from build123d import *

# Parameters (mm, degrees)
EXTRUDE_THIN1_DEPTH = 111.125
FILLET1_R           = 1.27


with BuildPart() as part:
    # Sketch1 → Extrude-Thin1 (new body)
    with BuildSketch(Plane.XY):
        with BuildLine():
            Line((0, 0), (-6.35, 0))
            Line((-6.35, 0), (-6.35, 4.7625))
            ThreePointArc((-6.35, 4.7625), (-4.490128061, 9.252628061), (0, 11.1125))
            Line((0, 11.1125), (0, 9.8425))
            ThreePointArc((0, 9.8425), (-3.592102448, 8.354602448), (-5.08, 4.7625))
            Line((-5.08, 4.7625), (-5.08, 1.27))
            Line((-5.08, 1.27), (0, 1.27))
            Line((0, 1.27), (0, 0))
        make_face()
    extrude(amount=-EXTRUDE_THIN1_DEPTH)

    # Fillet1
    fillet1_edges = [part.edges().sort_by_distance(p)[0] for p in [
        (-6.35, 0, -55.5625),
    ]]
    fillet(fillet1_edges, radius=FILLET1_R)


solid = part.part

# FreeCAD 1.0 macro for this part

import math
import FreeCAD as App
import Part
import Sketcher
Q = App.Units.Quantity


def edges_at(feature, points):
    """Names of the edges that pass closest to the given points."""
    edges = feature.Shape.Edges
    near = lambda p: min(range(len(edges)), key=lambda i: edges[i].distToShape(Part.Vertex(*p))[0])
    return sorted({f"Edge{near(p) + 1}" for p in points})

doc = App.newDocument("Part")
body = doc.addObject("PartDesign::Body", "Body")

# Sketch on XY plane
sketch1 = doc.addObject("Sketcher::SketchObject", "Sketch")
body.addObject(sketch1)
sketch1.AttachmentSupport = (doc.XY_Plane, [""])
sketch1.MapMode = "FlatFace"
sketch1.addGeometry([
    Part.LineSegment(App.Vector(-6.3, 0, 0), App.Vector(0, 0, 0)),  # 0
    Part.LineSegment(App.Vector(0, 0, 0), App.Vector(0, 1.3, 0)),  # 1
    Part.LineSegment(App.Vector(0, 1.3, 0), App.Vector(-5.1, 1.3, 0)),  # 2
    Part.LineSegment(App.Vector(-5.1, 1.3, 0), App.Vector(-5.1, 4.8, 0)),  # 3
    Part.ArcOfCircle(Part.Circle(App.Vector(0, 4.8, 0), App.Vector(0, 0, 1), 5.1), math.radians(90), math.radians(180)),  # 4
    Part.LineSegment(App.Vector(0, 9.8, 0), App.Vector(0, 11.1, 0)),  # 5
    Part.ArcOfCircle(Part.Circle(App.Vector(0, 4.8, 0), App.Vector(0, 0, 1), 6.3), math.radians(90), math.radians(180)),  # 6
    Part.LineSegment(App.Vector(-6.3, 4.8, 0), App.Vector(-6.3, 0, 0)),  # 7
], False)
sketch1.addConstraint([
    Sketcher.Constraint("Coincident", 0, 2, 1, 1),
    Sketcher.Constraint("Coincident", 1, 2, 2, 1),
    Sketcher.Constraint("Coincident", 2, 2, 3, 1),
    Sketcher.Constraint("Tangent", 3, 2, 4, 2),
    Sketcher.Constraint("Coincident", 4, 1, 5, 1),
    Sketcher.Constraint("Coincident", 5, 2, 6, 1),
    Sketcher.Constraint("Tangent", 6, 2, 7, 1),
    Sketcher.Constraint("Coincident", 7, 2, 0, 1),
    Sketcher.Constraint("Horizontal", 0),
    Sketcher.Constraint("Vertical", 1),
    Sketcher.Constraint("Horizontal", 2),
    Sketcher.Constraint("Vertical", 3),
    Sketcher.Constraint("Vertical", 5),
    Sketcher.Constraint("Vertical", 7),
    Sketcher.Constraint("Coincident", 0, 2, -1, 1),
    Sketcher.Constraint("Coincident", 6, 3, 4, 3),
    Sketcher.Constraint("PointOnObject", 4, 3, -2),
    Sketcher.Constraint("PointOnObject", 4, 1, -2),
    Sketcher.Constraint("Equal", 1, 5),
    Sketcher.Constraint("Radius", 4, Q("0.2 in")),
    Sketcher.Constraint("Radius", 6, Q("0.25 in")),
    Sketcher.Constraint("DistanceY", 7, 2, 7, 1, Q("0.1875 in")),
])
pad1 = doc.addObject("PartDesign::Pad", "Pad")
body.addObject(pad1)
pad1.Profile = sketch1
pad1.Length = Q("4.375 in")
pad1.Reversed = True
doc.recompute()

fillet = doc.addObject("PartDesign::Fillet", "Fillet")
body.addObject(fillet)
fillet.Base = (pad1, edges_at(pad1, [(-6.35, 0, -55.562)]))
fillet.Radius = Q("0.05 in")

doc.recompute()
